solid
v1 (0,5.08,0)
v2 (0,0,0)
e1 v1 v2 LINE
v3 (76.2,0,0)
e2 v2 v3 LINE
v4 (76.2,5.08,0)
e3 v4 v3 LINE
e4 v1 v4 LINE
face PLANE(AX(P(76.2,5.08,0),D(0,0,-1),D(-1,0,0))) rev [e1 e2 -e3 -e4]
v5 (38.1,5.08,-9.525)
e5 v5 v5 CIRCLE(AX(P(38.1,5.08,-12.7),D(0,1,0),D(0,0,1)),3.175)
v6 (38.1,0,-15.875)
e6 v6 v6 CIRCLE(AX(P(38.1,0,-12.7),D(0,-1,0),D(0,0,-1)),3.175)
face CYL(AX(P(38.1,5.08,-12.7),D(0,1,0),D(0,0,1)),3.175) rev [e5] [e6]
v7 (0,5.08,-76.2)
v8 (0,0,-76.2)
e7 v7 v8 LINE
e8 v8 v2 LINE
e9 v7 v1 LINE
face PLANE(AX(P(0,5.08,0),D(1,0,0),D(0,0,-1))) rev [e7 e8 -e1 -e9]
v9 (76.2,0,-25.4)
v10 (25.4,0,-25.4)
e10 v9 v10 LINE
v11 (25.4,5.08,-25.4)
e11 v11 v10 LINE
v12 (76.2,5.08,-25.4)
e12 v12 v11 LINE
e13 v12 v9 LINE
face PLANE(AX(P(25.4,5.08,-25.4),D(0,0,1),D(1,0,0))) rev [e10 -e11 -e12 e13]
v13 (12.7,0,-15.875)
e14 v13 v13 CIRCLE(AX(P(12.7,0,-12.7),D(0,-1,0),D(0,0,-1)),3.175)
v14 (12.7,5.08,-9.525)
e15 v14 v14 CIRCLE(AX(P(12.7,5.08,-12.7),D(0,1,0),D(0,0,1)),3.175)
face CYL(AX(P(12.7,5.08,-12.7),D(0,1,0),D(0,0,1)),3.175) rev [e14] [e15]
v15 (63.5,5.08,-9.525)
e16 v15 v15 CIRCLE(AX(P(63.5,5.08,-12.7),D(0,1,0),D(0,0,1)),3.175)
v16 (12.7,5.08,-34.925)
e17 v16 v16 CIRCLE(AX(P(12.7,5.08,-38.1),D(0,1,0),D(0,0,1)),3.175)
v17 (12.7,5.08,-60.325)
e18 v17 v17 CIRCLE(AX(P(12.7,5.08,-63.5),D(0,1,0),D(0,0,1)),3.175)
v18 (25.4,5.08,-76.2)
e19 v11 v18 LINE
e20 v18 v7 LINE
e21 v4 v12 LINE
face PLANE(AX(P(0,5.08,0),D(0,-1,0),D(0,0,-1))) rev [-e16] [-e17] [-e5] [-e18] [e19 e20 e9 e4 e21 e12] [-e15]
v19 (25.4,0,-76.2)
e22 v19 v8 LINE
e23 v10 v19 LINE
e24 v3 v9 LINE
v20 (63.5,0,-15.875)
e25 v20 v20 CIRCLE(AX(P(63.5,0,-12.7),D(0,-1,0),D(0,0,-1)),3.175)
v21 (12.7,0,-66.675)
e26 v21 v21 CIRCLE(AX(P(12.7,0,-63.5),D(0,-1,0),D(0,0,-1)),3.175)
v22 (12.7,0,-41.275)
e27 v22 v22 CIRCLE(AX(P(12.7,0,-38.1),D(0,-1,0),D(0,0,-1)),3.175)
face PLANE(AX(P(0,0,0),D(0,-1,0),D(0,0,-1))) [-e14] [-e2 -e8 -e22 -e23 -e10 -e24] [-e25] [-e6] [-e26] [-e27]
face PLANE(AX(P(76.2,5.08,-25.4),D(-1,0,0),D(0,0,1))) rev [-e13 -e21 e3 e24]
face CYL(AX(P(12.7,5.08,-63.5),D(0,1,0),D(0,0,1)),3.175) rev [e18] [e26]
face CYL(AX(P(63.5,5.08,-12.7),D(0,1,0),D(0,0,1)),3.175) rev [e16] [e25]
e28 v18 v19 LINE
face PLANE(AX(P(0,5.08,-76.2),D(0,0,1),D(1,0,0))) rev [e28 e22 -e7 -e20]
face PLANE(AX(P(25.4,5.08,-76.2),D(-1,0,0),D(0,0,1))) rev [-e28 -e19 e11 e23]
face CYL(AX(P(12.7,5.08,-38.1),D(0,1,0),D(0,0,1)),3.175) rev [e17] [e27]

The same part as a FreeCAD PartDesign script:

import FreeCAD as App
import Part
import Sketcher
Q = App.Units.Quantity

doc = App.newDocument("Part")
body = doc.addObject("PartDesign::Body", "Body")

sketch1 = body.newObject("Sketcher::SketchObject", "Sketch")
sketch1.AttachmentSupport = (doc.getObject("XZ_Plane"), [""])
sketch1.MapMode = "FlatFace"
sketch1.addGeometry([
    Part.LineSegment(App.Vector(0, -76, 0), App.Vector(0, 0, 0)),
    Part.LineSegment(App.Vector(0, 0, 0), App.Vector(76, 0, 0)),
    Part.LineSegment(App.Vector(76, 0, 0), App.Vector(76, -25, 0)),
    Part.LineSegment(App.Vector(76, -25, 0), App.Vector(25, -25, 0)),
    Part.LineSegment(App.Vector(25, -25, 0), App.Vector(25, -76, 0)),
    Part.LineSegment(App.Vector(25, -76, 0), App.Vector(0, -76, 0)),
], False)
sketch1.addConstraint([
    Sketcher.Constraint("Coincident", 0, 2, 1, 1),
    Sketcher.Constraint("Coincident", 1, 2, 2, 1),
    Sketcher.Constraint("Coincident", 2, 2, 3, 1),
    Sketcher.Constraint("Coincident", 3, 2, 4, 1),
    Sketcher.Constraint("Coincident", 4, 2, 5, 1),
    Sketcher.Constraint("Coincident", 5, 2, 0, 1),
    Sketcher.Constraint("Vertical", 0),
    Sketcher.Constraint("Horizontal", 1),
    Sketcher.Constraint("Vertical", 2),
    Sketcher.Constraint("Horizontal", 3),
    Sketcher.Constraint("Vertical", 4),
    Sketcher.Constraint("Horizontal", 5),
    Sketcher.Constraint("Coincident", 0, 2, -1, 1),
    Sketcher.Constraint("Equal", 1, 0),
    Sketcher.Constraint("Equal", 5, 2),
    Sketcher.Constraint("DistanceX", 1, 1, 1, 2, Q("3 in")),
    Sketcher.Constraint("DistanceX", 3, 2, 3, 1, Q("2 in")),
])
pad1 = body.newObject("PartDesign::Pad", "Pad")
pad1.Profile = sketch1
pad1.Length = Q("0.2 in")
pad1.Reversed = True

sketch2 = body.newObject("Sketcher::SketchObject", "Sketch001")
sketch2.AttachmentSupport = (doc.getObject("XZ_Plane"), [""])
sketch2.MapMode = "FlatFace"
sketch2.AttachmentOffset = App.Placement(App.Vector(0, 0, -0.2 * 25.4), App.Rotation())
sketch2.addGeometry([
    Part.Circle(App.Vector(12.7, -63.5, 0), App.Vector(0, 0, 1), 3.2),
    Part.Circle(App.Vector(12.7, -38.1, 0), App.Vector(0, 0, 1), 3.2),
    Part.Circle(App.Vector(12.7, -12.7, 0), App.Vector(0, 0, 1), 3.2),
    Part.Circle(App.Vector(38.1, -12.7, 0), App.Vector(0, 0, 1), 3.2),
    Part.Circle(App.Vector(63.5, -12.7, 0), App.Vector(0, 0, 1), 3.2),
], False)
sketch2.addConstraint([
    Sketcher.Constraint("Equal", 0, 1),
    Sketcher.Constraint("Equal", 1, 2),
    Sketcher.Constraint("Equal", 2, 3),
    Sketcher.Constraint("Equal", 3, 4),
    Sketcher.Constraint("Horizontal", 2, 3, 3, 3),
    Sketcher.Constraint("Horizontal", 3, 3, 4, 3),
    Sketcher.Constraint("Vertical", 0, 3, 1, 3),
    Sketcher.Constraint("Vertical", 1, 3, 2, 3),
    Sketcher.Constraint("Diameter", 0, Q("0.25 in")),
    Sketcher.Constraint("DistanceY", 0, 3, 1, 3, Q("1 in")),
    Sketcher.Constraint("DistanceY", 1, 3, 2, 3, Q("1 in")),
    Sketcher.Constraint("DistanceX", 2, 3, 3, 3, Q("1 in")),
    Sketcher.Constraint("DistanceX", 3, 3, 4, 3, Q("1 in")),
    Sketcher.Constraint("DistanceX", -1, 1, 0, 3, Q("0.5 in")),
    Sketcher.Constraint("DistanceY", 0, 3, -1, 1, Q("2.5 in")),
])
doc.recompute()
hole = body.newObject("PartDesign::Hole", "Hole")
hole.Profile = sketch2
hole.ThreadType = "None"
hole.Diameter = Q("0.25 in")
hole.DepthType = "Dimension"
hole.Depth = Q("1 in")
hole.DrillPoint = "Angled"
hole.DrillPointAngle = 118
hole.Reversed = True

doc.recompute()
